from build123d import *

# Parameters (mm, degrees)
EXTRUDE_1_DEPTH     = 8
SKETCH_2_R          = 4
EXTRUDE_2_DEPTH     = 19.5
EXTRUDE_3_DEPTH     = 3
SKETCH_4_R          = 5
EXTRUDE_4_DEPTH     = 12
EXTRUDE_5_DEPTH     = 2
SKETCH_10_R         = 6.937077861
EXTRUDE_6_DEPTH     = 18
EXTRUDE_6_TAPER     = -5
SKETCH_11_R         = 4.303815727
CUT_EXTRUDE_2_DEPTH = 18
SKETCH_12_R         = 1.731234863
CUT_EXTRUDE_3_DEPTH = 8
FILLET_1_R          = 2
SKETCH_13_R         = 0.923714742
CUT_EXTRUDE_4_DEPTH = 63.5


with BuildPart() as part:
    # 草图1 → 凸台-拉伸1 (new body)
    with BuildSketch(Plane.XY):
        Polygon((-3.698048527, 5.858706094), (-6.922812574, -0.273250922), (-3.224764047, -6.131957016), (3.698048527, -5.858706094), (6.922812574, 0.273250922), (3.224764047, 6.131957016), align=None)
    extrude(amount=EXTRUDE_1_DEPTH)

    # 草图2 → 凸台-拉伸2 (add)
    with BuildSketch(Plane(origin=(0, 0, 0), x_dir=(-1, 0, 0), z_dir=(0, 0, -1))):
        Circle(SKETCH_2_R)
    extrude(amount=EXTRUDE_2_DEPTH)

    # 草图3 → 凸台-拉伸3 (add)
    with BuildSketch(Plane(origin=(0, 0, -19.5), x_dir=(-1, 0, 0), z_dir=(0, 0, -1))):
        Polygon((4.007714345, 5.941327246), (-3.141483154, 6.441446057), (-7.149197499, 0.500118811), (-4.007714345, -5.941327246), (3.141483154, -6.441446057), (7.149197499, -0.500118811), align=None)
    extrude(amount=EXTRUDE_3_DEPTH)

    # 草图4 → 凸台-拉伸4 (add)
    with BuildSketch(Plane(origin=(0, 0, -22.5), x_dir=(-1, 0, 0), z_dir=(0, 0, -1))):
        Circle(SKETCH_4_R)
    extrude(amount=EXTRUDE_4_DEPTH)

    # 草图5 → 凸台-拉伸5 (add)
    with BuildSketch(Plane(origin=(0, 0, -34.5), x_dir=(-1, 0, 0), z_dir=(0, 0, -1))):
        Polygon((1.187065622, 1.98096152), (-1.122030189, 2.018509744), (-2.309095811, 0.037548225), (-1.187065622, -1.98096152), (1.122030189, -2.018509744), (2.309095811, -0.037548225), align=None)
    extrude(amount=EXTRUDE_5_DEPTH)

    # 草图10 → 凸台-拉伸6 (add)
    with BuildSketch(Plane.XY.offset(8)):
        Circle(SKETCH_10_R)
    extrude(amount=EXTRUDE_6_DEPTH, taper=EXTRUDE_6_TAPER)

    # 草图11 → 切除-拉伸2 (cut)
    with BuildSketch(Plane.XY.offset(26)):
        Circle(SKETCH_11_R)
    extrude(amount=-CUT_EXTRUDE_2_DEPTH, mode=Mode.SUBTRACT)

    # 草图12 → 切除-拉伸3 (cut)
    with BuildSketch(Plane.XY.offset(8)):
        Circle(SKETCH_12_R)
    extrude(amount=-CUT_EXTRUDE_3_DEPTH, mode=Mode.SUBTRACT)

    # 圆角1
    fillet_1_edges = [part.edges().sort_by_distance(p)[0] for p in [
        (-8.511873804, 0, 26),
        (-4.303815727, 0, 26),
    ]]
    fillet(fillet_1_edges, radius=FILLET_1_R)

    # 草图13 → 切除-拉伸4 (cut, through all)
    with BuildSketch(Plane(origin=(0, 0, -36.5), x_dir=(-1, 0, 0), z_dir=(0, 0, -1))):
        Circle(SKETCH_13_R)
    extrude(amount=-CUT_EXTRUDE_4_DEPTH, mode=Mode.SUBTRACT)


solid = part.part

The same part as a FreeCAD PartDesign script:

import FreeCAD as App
import Part
import Sketcher

V = App.Vector


def edges_at(feature, points):
    """Names of the edges that pass closest to the given points."""
    edges = feature.Shape.Edges
    near = lambda p: min(range(len(edges)), key=lambda i: edges[i].distToShape(Part.Vertex(*p))[0])
    return sorted({f"Edge{near(p) + 1}" for p in points})


def add_polygon(sketch, points):
    """Adds a closed chain of lines whose ends are joined by coincident constraints."""
    first, n = sketch.GeometryCount, len(points)
    for a, b in zip(points, points[1:] + points[:1]):
        sketch.addGeometry(Part.LineSegment(App.Vector(*a, 0), App.Vector(*b, 0)), False)
    for i in range(n):
        sketch.addConstraint(Sketcher.Constraint("Coincident", first + i, 2, first + (i + 1) % n, 1))

doc = App.newDocument("Part")
params = doc.addObject("Spreadsheet::Sheet", "Params")
for row, (alias, value) in enumerate([
    ("pad1_length", "8 mm"),
    ("sketch2_diameter", "8 mm"),
    ("pad2_length", "19.5 mm"),
    ("pad3_length", "3 mm"),
    ("sketch4_diameter", "10 mm"),
    ("pad4_length", "12 mm"),
    ("pad5_length", "2 mm"),
    ("pad6_length", "18 mm"),
    ("pad6_taper", "5 deg"),
    ("pocket1_length", "18 mm"),
    ("pocket2_length", "8 mm"),
    ("fillet_radius", "2 mm"),
], start=1):
    params.set(f"A{row}", alias)
    params.set(f"B{row}", "=" + value)
    params.setAlias(f"B{row}", alias)

body = doc.addObject("PartDesign::Body", "Body")

# Sketch on XY plane
sketch1 = body.newObject("Sketcher::SketchObject", "Sketch")
sketch1.AttachmentSupport = (doc.getObject("XY_Plane"), [""])
sketch1.MapMode = "FlatFace"
add_polygon(sketch1, [(-3.698049, 5.858706), (-6.922813, -0.273251), (-3.224764, -6.131957), (3.698049, -5.858706), (6.922813, 0.273251), (3.224764, 6.131957)])  # lines 0-5
sketch1.addConstraint([
    Sketcher.Constraint("Symmetric", 0, 2, 3, 2, -1, 1),
    Sketcher.Constraint("Symmetric", 1, 2, 4, 2, -1, 1),
    Sketcher.Constraint("Symmetric", 2, 2, 5, 2, -1, 1),
    Sketcher.Constraint("Equal", 0, 1),
    Sketcher.Constraint("Equal", 1, 2),
    Sketcher.Constraint("DistanceY", 0, 2, 3, 2, 0.546502),
    Sketcher.Constraint("DistanceX", -1, 1, 2, 2, 3.698049),
    Sketcher.Constraint("DistanceX", 0, 2, 1, 2, 3.698049),
    Sketcher.Constraint("DistanceY", 1, 2, 2, 2, 0.273251),
])
pad1 = body.newObject("PartDesign::Pad", "Pad")
pad1.Profile = sketch1
pad1.setExpression("Length", "Params.pad1_length")

# Sketch on XY plane
sketch2 = body.newObject("Sketcher::SketchObject", "Sketch001")
sketch2.AttachmentSupport = (doc.getObject("XY_Plane"), [""])
sketch2.MapMode = "FlatFace"
sketch2.addGeometry(Part.Circle(V(0, 0, 0), V(0, 0, 1), 4), False)
sketch2.addConstraint([
    Sketcher.Constraint("Coincident", 0, 3, -1, 1),
    Sketcher.Constraint("Diameter", 0, 8.0),
])
sketch2.setExpression("Constraints[1]", "Params.sketch2_diameter")
pad2 = body.newObject("PartDesign::Pad", "Pad001")
pad2.Profile = sketch2
pad2.setExpression("Length", "Params.pad2_length")
pad2.Reversed = True

# Sketch on XY plane
sketch3 = body.newObject("Sketcher::SketchObject", "Sketch002")
sketch3.AttachmentSupport = (doc.getObject("XY_Plane"), [""])
sketch3.MapMode = "FlatFace"
sketch3.AttachmentOffset = App.Placement(V(0, 0, -19.5), App.Rotation())
add_polygon(sketch3, [(-4.007714, 5.941327), (3.141483, 6.441446), (7.149197, 0.500119), (4.007714, -5.941327), (-3.141483, -6.441446), (-7.149197, -0.500119)])  # lines 0-5
sketch3.addConstraint([
    Sketcher.Constraint("Symmetric", 0, 2, 3, 2, -1, 1),
    Sketcher.Constraint("Symmetric", 1, 2, 4, 2, -1, 1),
    Sketcher.Constraint("Symmetric", 2, 2, 5, 2, -1, 1),
    Sketcher.Constraint("Equal", 0, 1),
    Sketcher.Constraint("Equal", 1, 2),
    Sketcher.Constraint("Distance", 0, 7.166669),
    Sketcher.Constraint("DistanceY", -1, 1, 1, 2, 0.500119),
    Sketcher.Constraint("DistanceX", 0, 2, 2, 2, 0.866231),
    Sketcher.Constraint("DistanceY", 3, 2, 2, 2, 0.500119),
])
pad3 = body.newObject("PartDesign::Pad", "Pad002")
pad3.Profile = sketch3
pad3.setExpression("Length", "Params.pad3_length")
pad3.Reversed = True

# Sketch on XY plane
sketch4 = body.newObject("Sketcher::SketchObject", "Sketch003")
sketch4.AttachmentSupport = (doc.getObject("XY_Plane"), [""])
sketch4.MapMode = "FlatFace"
sketch4.AttachmentOffset = App.Placement(V(0, 0, -22.5), App.Rotation())
sketch4.addGeometry(Part.Circle(V(0, 0, 0), V(0, 0, 1), 5), False)
sketch4.addConstraint([
    Sketcher.Constraint("Coincident", 0, 3, -1, 1),
    Sketcher.Constraint("Diameter", 0, 10.0),
])
sketch4.setExpression("Constraints[1]", "Params.sketch4_diameter")
pad4 = body.newObject("PartDesign::Pad", "Pad003")
pad4.Profile = sketch4
pad4.setExpression("Length", "Params.pad4_length")
pad4.Reversed = True

# Sketch on XY plane
sketch5 = body.newObject("Sketcher::SketchObject", "Sketch004")
sketch5.AttachmentSupport = (doc.getObject("XY_Plane"), [""])
sketch5.MapMode = "FlatFace"
sketch5.AttachmentOffset = App.Placement(V(0, 0, -34.5), App.Rotation())
add_polygon(sketch5, [(-1.187066, 1.980962), (1.12203, 2.01851), (2.309096, 0.037548), (1.187066, -1.980962), (-1.12203, -2.01851), (-2.309096, -0.037548)])  # lines 0-5
sketch5.addConstraint([
    Sketcher.Constraint("Symmetric", 0, 2, 3, 2, -1, 1),
    Sketcher.Constraint("Symmetric", 1, 2, 4, 2, -1, 1),
    Sketcher.Constraint("Symmetric", 2, 2, 5, 2, -1, 1),
    Sketcher.Constraint("Equal", 0, 1),
    Sketcher.Constraint("Equal", 1, 2),
    Sketcher.Constraint("Distance", 0, 2.309401),
    Sketcher.Constraint("DistanceX", -1, 1, 0, 2, 1.12203),
    Sketcher.Constraint("DistanceY", -1, 1, 0, 2, 2.01851),
    Sketcher.Constraint("DistanceY", -1, 1, 1, 2, 0.037548),
])
pad5 = body.newObject("PartDesign::Pad", "Pad004")
pad5.Profile = sketch5
pad5.setExpression("Length", "Params.pad5_length")
pad5.Reversed = True

# Sketch on XY plane
sketch6 = body.newObject("Sketcher::SketchObject", "Sketch005")
sketch6.AttachmentSupport = (doc.getObject("XY_Plane"), [""])
sketch6.MapMode = "FlatFace"
sketch6.AttachmentOffset = App.Placement(V(0, 0, 8), App.Rotation())
sketch6.addGeometry(Part.Circle(V(0, 0, 0), V(0, 0, 1), 6.937078), False)
sketch6.addConstraint([
    Sketcher.Constraint("Coincident", 0, 3, -1, 1),
    Sketcher.Constraint("Diameter", 0, 13.874156),
])
pad6 = body.newObject("PartDesign::Pad", "Pad005")
pad6.Profile = sketch6
pad6.setExpression("Length", "Params.pad6_length")
pad6.setExpression("TaperAngle", "Params.pad6_taper")

# Sketch on XY plane
sketch7 = body.newObject("Sketcher::SketchObject", "Sketch006")
sketch7.AttachmentSupport = (doc.getObject("XY_Plane"), [""])
sketch7.MapMode = "FlatFace"
sketch7.AttachmentOffset = App.Placement(V(0, 0, 26), App.Rotation())
sketch7.addGeometry(Part.Circle(V(0, 0, 0), V(0, 0, 1), 4.303816), False)
sketch7.addConstraint([
    Sketcher.Constraint("Coincident", 0, 3, -1, 1),
    Sketcher.Constraint("Diameter", 0, 8.607631),
])
pocket1 = body.newObject("PartDesign::Pocket", "Pocket")
pocket1.Profile = sketch7
pocket1.setExpression("Length", "Params.pocket1_length")

# Sketch on XY plane
sketch8 = body.newObject("Sketcher::SketchObject", "Sketch007")
sketch8.AttachmentSupport = (doc.getObject("XY_Plane"), [""])
sketch8.MapMode = "FlatFace"
sketch8.AttachmentOffset = App.Placement(V(0, 0, 8), App.Rotation())
sketch8.addGeometry(Part.Circle(V(0, 0, 0), V(0, 0, 1), 1.731235), False)
sketch8.addConstraint([
    Sketcher.Constraint("Coincident", 0, 3, -1, 1),
    Sketcher.Constraint("Diameter", 0, 3.46247),
])
pocket2 = body.newObject("PartDesign::Pocket", "Pocket001")
pocket2.Profile = sketch8
pocket2.setExpression("Length", "Params.pocket2_length")
doc.recompute()

fillet = body.newObject("PartDesign::Fillet", "Fillet")
fillet.Base = (pocket2, edges_at(pocket2, [(-8.512, 0, 26), (-4.304, 0, 26)]))
fillet.setExpression("Radius", "Params.fillet_radius")

# Sketch on XY plane
sketch9 = body.newObject("Sketcher::SketchObject", "Sketch008")
sketch9.AttachmentSupport = (doc.getObject("XY_Plane"), [""])
sketch9.MapMode = "FlatFace"
sketch9.AttachmentOffset = App.Placement(V(0, 0, -36.5), App.Rotation())
sketch9.addGeometry(Part.Circle(V(0, 0, 0), V(0, 0, 1), 0.923715), False)
sketch9.addConstraint([
    Sketcher.Constraint("Coincident", 0, 3, -1, 1),
    Sketcher.Constraint("Diameter", 0, 1.847429),
])
pocket3 = body.newObject("PartDesign::Pocket", "Pocket002")
pocket3.Profile = sketch9
pocket3.Type = "ThroughAll"
pocket3.Reversed = True

doc.recompute()
